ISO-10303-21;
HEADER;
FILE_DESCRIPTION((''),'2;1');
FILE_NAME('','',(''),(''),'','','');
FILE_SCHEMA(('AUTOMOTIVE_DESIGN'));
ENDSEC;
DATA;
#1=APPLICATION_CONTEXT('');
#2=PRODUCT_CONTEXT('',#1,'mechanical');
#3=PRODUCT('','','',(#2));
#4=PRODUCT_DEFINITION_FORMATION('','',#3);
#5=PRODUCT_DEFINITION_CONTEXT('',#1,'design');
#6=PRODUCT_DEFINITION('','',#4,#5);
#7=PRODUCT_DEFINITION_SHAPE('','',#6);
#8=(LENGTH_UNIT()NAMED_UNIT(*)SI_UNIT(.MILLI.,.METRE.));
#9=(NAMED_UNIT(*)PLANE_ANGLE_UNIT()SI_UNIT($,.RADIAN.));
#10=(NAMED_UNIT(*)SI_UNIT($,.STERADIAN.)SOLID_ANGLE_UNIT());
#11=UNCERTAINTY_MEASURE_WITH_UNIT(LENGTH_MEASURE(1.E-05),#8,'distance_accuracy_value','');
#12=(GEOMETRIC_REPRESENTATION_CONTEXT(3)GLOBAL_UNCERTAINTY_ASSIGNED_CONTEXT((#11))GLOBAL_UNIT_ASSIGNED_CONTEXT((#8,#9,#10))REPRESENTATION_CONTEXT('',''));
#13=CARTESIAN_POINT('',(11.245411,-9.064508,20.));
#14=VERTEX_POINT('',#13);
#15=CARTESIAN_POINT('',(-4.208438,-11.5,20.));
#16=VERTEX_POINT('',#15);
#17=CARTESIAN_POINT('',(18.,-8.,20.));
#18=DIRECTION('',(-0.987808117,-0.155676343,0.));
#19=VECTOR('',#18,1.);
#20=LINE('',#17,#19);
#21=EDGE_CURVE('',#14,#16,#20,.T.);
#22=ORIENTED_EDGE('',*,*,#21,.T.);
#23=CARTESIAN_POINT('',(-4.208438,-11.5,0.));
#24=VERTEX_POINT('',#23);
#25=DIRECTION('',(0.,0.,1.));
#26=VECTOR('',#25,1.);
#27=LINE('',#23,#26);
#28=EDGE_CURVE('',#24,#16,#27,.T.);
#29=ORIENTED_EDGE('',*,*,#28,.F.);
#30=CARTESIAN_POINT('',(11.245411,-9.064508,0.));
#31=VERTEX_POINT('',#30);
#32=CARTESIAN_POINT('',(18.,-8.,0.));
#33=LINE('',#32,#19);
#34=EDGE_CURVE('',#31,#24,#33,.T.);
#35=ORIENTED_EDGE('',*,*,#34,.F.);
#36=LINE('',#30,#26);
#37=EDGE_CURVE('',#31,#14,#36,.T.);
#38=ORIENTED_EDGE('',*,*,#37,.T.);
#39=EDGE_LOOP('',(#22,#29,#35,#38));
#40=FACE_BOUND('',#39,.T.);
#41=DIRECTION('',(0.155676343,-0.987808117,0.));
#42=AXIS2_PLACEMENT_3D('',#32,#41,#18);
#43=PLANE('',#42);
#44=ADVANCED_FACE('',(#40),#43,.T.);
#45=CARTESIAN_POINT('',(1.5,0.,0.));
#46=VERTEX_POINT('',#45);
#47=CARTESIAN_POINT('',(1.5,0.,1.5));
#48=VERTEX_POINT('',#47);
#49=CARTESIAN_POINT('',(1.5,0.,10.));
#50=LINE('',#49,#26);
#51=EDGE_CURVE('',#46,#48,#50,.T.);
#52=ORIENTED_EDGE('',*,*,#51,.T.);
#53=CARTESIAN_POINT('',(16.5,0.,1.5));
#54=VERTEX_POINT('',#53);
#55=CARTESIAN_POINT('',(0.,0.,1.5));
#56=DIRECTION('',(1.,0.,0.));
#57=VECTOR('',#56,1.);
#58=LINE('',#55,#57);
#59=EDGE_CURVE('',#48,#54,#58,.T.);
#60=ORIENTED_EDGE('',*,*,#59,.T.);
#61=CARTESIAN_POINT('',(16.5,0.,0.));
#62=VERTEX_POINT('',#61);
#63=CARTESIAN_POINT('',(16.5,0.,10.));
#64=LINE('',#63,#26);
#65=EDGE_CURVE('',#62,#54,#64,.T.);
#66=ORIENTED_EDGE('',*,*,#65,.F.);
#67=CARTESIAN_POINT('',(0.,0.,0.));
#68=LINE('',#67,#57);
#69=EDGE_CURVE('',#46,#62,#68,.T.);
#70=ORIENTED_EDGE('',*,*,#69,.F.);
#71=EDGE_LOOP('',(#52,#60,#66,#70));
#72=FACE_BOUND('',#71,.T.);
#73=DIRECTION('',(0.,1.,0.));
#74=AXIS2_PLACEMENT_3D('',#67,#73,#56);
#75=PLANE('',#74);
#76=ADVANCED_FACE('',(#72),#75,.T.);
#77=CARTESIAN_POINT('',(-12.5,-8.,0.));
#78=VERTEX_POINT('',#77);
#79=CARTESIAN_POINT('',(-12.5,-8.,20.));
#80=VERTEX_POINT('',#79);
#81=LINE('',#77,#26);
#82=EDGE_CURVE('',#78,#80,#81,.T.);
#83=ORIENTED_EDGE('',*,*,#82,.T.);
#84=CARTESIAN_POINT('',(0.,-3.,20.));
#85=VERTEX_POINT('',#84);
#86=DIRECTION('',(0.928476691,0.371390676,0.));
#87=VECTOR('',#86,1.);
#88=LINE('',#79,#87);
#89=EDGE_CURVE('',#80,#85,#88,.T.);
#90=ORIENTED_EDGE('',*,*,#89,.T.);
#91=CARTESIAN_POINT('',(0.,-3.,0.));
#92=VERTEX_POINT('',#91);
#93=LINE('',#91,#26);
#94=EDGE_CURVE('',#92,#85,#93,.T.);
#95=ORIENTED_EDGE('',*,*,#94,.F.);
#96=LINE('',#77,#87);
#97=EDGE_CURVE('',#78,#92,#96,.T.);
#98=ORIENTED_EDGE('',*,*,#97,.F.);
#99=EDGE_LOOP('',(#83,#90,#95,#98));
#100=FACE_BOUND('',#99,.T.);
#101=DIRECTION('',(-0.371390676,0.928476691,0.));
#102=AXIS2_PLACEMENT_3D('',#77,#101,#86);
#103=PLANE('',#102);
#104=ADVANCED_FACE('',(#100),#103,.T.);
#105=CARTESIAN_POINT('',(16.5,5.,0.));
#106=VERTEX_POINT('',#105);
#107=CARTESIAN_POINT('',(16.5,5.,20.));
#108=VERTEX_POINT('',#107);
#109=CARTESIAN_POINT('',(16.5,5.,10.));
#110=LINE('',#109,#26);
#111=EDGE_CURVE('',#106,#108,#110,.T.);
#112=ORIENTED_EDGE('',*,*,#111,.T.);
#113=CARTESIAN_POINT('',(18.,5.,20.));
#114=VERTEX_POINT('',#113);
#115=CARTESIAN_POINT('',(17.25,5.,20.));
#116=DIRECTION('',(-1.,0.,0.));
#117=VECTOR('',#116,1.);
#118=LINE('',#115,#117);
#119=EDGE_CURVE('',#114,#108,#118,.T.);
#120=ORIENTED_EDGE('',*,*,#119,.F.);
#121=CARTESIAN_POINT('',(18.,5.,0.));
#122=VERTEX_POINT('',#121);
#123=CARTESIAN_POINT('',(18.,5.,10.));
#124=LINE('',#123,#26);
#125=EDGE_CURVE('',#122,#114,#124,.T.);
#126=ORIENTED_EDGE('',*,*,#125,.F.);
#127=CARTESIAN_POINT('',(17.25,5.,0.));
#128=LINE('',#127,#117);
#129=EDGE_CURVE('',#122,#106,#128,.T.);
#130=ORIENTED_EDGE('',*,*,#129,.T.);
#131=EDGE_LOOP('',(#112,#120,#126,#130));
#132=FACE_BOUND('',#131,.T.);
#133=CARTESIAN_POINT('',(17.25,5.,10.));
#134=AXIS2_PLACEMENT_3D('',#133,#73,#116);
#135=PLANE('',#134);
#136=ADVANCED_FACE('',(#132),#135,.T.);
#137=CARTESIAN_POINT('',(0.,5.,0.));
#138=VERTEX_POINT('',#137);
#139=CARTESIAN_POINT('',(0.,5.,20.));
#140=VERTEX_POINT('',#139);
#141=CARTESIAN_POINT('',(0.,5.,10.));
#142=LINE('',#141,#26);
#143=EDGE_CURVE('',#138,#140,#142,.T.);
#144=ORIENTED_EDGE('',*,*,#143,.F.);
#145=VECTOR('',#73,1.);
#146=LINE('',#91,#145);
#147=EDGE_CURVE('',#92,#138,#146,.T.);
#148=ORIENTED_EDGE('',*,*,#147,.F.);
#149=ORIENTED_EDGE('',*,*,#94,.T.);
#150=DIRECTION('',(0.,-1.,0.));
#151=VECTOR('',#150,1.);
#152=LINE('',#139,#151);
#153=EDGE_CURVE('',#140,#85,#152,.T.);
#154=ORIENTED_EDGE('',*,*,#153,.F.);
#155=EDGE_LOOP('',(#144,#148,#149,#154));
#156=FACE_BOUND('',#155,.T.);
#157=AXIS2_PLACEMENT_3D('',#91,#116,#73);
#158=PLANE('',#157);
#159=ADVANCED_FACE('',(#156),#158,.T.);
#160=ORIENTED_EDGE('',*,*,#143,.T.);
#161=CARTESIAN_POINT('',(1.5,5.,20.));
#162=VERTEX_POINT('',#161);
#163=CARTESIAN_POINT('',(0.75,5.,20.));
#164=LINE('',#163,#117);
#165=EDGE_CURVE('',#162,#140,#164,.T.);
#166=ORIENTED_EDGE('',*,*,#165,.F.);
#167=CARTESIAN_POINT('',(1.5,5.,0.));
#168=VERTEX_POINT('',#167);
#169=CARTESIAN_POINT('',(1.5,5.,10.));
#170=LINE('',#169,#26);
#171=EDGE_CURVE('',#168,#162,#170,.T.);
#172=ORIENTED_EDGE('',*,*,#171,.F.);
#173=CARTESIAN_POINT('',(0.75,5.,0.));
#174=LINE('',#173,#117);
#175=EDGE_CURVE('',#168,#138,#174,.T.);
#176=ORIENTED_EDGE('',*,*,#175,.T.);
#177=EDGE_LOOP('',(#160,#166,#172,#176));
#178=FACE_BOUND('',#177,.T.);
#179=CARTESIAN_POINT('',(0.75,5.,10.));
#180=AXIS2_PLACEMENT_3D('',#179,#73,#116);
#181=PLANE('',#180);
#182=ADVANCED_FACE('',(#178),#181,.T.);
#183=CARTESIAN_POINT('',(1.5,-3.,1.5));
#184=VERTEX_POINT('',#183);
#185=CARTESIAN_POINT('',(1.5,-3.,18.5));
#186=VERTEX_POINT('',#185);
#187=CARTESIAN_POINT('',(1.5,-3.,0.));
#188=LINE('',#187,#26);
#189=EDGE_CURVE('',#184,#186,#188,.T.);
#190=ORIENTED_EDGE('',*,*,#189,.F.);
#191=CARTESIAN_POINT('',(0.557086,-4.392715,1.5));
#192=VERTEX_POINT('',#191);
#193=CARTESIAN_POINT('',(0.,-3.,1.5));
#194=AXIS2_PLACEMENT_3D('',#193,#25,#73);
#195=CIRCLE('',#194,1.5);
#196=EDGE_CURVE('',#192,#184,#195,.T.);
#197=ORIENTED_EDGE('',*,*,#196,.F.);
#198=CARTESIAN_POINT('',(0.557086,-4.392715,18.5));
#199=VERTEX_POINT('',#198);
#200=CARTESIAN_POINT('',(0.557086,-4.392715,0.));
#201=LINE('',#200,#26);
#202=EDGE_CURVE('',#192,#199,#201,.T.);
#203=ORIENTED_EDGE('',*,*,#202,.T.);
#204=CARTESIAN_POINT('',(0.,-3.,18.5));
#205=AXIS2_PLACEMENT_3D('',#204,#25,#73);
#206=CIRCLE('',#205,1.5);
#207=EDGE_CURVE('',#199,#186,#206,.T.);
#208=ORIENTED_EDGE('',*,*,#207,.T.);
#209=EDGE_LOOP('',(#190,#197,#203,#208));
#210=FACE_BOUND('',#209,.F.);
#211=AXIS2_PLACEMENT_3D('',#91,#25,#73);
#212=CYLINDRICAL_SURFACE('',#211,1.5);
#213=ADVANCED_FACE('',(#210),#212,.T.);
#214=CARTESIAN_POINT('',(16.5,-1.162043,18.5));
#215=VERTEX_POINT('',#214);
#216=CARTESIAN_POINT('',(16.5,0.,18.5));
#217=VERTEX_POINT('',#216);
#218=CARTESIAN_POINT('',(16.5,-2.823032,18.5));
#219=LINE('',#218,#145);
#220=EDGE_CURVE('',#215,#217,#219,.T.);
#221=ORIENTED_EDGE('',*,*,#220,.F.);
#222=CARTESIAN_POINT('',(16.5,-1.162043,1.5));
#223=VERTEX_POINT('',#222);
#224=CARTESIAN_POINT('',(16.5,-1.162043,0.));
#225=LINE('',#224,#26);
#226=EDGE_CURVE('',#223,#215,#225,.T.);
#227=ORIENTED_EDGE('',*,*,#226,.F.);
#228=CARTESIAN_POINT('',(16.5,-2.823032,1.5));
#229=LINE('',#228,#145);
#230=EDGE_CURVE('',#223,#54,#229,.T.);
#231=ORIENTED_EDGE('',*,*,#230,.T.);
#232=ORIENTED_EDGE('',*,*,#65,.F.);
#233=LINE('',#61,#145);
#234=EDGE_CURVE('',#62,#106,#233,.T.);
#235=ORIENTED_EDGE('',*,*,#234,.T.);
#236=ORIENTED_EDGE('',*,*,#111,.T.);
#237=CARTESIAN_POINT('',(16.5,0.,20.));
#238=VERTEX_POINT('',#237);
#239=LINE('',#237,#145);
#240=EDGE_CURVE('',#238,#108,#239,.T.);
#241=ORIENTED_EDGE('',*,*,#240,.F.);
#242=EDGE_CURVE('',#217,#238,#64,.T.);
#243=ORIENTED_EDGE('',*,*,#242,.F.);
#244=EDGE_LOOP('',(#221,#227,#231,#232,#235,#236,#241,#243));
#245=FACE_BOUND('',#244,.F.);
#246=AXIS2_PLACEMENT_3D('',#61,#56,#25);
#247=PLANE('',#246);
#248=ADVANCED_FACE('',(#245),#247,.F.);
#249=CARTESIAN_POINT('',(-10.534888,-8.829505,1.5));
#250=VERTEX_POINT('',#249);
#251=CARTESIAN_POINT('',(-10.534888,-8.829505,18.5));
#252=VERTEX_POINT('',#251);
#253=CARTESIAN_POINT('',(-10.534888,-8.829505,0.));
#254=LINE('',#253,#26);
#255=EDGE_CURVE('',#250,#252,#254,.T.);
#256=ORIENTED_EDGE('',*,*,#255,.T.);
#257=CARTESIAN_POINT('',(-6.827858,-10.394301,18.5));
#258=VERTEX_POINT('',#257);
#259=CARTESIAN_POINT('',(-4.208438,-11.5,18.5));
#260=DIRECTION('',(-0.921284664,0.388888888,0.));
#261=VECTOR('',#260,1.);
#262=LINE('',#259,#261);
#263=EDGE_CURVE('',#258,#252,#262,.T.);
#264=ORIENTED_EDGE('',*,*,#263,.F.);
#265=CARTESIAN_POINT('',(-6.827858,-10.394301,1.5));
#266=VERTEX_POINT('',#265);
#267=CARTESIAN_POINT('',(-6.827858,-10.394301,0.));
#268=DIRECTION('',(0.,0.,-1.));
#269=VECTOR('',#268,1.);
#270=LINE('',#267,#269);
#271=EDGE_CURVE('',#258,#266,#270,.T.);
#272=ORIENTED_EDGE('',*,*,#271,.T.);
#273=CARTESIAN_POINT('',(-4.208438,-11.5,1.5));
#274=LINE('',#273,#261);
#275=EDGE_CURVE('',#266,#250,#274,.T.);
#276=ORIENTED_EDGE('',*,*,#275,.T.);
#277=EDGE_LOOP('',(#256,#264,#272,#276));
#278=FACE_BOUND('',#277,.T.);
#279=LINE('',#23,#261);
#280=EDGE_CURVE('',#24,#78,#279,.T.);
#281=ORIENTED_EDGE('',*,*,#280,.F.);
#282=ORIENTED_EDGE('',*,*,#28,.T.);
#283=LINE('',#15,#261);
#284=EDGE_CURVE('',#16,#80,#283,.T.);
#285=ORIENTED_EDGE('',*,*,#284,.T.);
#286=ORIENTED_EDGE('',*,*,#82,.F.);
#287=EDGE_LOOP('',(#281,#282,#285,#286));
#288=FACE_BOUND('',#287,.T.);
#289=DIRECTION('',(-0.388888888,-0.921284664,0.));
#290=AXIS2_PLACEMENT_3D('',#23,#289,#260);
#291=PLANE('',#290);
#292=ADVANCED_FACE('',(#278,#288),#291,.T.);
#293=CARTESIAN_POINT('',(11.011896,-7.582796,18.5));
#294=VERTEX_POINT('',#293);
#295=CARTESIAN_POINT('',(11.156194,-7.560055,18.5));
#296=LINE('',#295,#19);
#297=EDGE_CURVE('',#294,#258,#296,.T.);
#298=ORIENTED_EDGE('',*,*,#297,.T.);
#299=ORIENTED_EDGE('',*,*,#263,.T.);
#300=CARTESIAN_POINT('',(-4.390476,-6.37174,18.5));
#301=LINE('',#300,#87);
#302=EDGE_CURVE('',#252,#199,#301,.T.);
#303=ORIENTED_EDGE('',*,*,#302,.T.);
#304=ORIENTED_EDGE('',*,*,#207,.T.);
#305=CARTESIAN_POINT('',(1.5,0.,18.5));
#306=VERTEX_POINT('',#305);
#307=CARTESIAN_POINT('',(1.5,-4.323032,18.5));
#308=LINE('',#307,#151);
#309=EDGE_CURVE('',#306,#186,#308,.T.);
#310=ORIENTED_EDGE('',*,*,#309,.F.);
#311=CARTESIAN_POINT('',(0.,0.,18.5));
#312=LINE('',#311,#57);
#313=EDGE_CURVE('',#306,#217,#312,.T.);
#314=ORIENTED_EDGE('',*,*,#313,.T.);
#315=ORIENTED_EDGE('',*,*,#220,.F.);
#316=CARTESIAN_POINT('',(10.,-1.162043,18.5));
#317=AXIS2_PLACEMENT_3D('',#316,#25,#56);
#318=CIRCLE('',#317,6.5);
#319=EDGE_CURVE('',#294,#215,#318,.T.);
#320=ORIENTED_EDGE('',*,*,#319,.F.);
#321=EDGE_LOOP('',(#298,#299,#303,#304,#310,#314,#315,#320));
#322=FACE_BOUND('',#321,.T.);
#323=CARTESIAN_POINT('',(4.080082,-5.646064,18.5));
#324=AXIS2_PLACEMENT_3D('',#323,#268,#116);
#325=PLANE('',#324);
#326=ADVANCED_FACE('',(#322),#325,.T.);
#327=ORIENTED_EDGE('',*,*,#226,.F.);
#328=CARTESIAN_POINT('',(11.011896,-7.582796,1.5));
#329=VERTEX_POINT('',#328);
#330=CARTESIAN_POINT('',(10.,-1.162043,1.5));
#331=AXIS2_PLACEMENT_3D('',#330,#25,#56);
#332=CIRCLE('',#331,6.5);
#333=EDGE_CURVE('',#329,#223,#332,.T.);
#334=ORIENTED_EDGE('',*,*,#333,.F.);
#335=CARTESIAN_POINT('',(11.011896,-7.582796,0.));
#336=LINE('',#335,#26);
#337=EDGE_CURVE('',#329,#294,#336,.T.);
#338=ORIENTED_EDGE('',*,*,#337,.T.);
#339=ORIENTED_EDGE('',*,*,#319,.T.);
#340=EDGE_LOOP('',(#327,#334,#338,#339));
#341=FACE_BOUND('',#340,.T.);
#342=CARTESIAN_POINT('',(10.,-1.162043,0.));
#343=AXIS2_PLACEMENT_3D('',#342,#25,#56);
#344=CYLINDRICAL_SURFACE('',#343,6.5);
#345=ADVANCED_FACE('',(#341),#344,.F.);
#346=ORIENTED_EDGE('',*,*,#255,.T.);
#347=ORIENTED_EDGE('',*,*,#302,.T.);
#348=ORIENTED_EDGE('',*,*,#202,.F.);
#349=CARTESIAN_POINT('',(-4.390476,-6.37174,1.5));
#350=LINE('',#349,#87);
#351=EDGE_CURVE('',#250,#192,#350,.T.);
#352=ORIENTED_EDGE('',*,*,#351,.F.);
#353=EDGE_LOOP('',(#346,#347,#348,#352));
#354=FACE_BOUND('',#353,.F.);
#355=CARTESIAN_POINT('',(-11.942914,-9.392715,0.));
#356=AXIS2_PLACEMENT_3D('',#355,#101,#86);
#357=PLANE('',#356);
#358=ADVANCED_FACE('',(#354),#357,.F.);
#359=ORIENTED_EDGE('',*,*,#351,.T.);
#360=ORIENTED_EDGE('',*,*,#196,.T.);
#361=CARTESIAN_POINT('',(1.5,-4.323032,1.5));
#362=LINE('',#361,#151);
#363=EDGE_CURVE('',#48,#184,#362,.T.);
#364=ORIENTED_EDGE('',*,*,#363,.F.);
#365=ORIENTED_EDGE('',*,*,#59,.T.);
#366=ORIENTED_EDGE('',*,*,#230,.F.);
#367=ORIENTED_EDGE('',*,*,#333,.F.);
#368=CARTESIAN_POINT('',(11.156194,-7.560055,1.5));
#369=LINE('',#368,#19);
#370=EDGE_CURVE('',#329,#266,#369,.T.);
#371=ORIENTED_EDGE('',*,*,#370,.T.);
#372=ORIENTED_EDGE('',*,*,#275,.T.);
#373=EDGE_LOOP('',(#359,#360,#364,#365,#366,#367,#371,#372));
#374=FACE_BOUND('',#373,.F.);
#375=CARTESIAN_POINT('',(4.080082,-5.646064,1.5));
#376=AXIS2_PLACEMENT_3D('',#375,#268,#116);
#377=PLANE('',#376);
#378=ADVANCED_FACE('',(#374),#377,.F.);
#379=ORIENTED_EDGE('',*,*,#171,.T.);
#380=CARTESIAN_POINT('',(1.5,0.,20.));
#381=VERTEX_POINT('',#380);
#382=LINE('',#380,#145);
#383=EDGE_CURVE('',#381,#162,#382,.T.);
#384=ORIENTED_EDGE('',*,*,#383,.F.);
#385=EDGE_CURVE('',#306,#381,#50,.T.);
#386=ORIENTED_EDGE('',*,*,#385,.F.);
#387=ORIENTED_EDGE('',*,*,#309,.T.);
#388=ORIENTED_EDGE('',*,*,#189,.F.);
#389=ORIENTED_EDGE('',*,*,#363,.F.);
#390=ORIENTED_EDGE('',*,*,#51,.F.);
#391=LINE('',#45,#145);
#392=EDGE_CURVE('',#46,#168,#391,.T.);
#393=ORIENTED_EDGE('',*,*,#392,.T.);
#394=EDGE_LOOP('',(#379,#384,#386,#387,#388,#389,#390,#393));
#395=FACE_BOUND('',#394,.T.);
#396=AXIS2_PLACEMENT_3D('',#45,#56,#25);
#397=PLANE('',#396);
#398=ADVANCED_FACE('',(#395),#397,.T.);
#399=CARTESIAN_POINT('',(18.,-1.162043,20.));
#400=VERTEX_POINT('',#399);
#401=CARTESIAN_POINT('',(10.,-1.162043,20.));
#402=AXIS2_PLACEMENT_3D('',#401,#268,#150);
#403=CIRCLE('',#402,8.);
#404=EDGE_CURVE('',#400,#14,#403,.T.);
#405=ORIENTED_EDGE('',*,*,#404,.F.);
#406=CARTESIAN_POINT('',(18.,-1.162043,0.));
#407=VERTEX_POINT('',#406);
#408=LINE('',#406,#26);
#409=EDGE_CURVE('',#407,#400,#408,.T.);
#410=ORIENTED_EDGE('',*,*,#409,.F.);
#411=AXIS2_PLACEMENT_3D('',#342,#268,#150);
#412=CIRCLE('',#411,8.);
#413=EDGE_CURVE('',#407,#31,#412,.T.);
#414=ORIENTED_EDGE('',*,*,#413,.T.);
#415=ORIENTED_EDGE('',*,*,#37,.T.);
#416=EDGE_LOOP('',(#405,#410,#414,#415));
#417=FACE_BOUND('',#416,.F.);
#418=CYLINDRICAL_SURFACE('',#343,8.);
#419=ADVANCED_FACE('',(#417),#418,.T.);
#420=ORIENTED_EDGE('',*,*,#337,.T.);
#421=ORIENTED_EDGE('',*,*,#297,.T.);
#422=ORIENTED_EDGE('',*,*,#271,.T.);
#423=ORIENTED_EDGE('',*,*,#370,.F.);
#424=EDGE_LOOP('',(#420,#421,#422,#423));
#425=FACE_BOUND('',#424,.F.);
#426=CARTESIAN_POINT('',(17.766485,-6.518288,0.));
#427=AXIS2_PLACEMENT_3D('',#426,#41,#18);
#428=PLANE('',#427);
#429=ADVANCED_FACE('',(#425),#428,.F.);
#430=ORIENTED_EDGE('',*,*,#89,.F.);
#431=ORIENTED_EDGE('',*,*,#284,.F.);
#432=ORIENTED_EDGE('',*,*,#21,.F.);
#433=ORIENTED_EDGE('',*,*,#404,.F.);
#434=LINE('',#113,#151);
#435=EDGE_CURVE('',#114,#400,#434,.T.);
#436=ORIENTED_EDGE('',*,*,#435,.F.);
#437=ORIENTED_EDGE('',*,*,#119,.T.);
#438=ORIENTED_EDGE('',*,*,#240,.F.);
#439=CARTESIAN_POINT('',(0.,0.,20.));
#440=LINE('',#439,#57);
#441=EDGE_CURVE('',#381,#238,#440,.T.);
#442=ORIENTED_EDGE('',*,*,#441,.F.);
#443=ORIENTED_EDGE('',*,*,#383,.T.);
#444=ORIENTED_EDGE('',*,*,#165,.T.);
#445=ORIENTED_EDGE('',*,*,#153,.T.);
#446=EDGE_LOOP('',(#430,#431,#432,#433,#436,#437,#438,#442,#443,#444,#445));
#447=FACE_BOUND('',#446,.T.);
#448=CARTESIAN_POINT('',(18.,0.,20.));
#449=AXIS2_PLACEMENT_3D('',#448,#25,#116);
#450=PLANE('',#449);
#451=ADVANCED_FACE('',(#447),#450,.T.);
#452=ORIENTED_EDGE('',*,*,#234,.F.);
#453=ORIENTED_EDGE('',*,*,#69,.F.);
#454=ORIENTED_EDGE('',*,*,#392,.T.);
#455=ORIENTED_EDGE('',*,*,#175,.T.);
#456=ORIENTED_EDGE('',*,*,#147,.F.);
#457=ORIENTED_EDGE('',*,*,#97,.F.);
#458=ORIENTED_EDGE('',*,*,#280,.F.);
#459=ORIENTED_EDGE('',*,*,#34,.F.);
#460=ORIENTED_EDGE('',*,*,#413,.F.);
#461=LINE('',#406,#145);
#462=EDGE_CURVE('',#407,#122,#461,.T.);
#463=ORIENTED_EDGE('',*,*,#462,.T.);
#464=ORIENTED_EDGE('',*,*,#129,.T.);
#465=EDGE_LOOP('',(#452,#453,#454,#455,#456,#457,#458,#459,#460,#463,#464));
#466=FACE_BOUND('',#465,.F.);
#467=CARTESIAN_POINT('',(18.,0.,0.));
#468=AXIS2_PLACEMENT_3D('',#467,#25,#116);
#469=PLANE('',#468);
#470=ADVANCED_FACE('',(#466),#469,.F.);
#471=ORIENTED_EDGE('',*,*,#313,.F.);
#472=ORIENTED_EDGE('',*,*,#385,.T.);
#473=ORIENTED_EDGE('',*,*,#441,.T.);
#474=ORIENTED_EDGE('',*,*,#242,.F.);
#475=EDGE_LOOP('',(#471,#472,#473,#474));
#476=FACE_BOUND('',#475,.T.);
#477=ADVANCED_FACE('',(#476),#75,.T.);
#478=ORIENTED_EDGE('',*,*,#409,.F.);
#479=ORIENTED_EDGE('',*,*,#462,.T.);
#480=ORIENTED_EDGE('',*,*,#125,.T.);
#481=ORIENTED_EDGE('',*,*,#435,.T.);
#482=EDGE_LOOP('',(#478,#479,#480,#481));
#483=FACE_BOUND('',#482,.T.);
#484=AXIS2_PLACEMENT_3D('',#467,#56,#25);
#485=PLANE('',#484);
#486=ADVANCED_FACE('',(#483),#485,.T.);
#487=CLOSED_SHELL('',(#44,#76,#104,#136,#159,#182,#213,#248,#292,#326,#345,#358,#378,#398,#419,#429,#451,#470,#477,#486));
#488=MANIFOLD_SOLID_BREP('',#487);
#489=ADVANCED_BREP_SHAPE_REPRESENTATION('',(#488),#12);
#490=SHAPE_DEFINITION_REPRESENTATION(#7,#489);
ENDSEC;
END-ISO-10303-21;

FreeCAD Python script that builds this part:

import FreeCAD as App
import Part
import Sketcher

V = App.Vector
Q = App.Units.Quantity


def edges_at(feature, points):
    """Names of the edges that pass closest to the given points."""
    edges = feature.Shape.Edges
    near = lambda p: min(range(len(edges)), key=lambda i: edges[i].distToShape(Part.Vertex(*p))[0])
    return sorted({f"Edge{near(p) + 1}" for p in points})


def faces_at(feature, points):
    """Names of the faces that lie closest to the given points."""
    faces = feature.Shape.Faces
    near = lambda p: min(range(len(faces)), key=lambda i: faces[i].distToShape(Part.Vertex(*p))[0])
    return sorted({f"Face{near(p) + 1}" for p in points})


def add_polygon(sketch, points):
    """Adds a closed chain of lines whose ends are joined by coincident constraints."""
    first, n = sketch.GeometryCount, len(points)
    for a, b in zip(points, points[1:] + points[:1]):
        sketch.addGeometry(Part.LineSegment(App.Vector(*a, 0), App.Vector(*b, 0)), False)
    for i in range(n):
        sketch.addConstraint(Sketcher.Constraint("Coincident", first + i, 2, first + (i + 1) % n, 1))

doc = App.newDocument("Part")
body = doc.addObject("PartDesign::Body", "Body")

# Sketch on XY plane
sketch1 = body.newObject("Sketcher::SketchObject", "Sketch")
sketch1.AttachmentSupport = (doc.getObject("XY_Plane"), [""])
sketch1.MapMode = "FlatFace"
add_polygon(sketch1, [(18, 0), (0, 0), (0, -3), (-12.5, -8), (-4.208438, -11.5), (18, -8)])  # lines 0-5
sketch1.addConstraint([
    Sketcher.Constraint("Horizontal", 0),
    Sketcher.Constraint("Vertical", 1),
    Sketcher.Constraint("Vertical", 5),
    Sketcher.Constraint("Coincident", 0, 2, -1, 1),
    Sketcher.Constraint("Horizontal", 2, 2, 4, 2),
    Sketcher.Constraint("DistanceX", 0, 2, 0, 1, Q("18 mm")),
    Sketcher.Constraint("DistanceY", 1, 2, 1, 1, Q("3 mm")),
    Sketcher.Constraint("DistanceY", 5, 1, 5, 2, Q("8 mm")),
    Sketcher.Constraint("Distance", 3, Q("9 mm")),
    Sketcher.Constraint("DistanceX", 2, 2, -1, 1, Q("12.5 mm")),
    Sketcher.Constraint("DistanceY", 3, 2, -1, 1, Q("11.5 mm")),
])
pad1 = body.newObject("PartDesign::Pad", "Pad")
pad1.Profile = sketch1
pad1.Length = 20
doc.recompute()

fillet = body.newObject("PartDesign::Fillet", "Fillet")
fillet.Base = (pad1, edges_at(pad1, [(18, -8, 10)]))
fillet.Radius = 8
doc.recompute()

thickness = body.newObject("PartDesign::Thickness", "Thickness")
thickness.Base = (fillet, faces_at(fillet, [(9, 0, 10), (-8.354, -9.75, 10)]))
thickness.Value = 1.5
thickness.Reversed = True
thickness.Join = "Arc"

# Sketch on XZ plane
sketch2 = body.newObject("Sketcher::SketchObject", "Sketch001")
sketch2.AttachmentSupport = (doc.getObject("XZ_Plane"), [""])
sketch2.MapMode = "FlatFace"
add_polygon(sketch2, [(18, 20), (18, 0), (16.5, 0), (16.5, 20)])  # lines 0-3
add_polygon(sketch2, [(1.5, 20), (1.5, 0), (0, 0), (0, 20)])  # lines 4-7
sketch2.addConstraint([
    Sketcher.Constraint("Vertical", 0),
    Sketcher.Constraint("Horizontal", 1),
    Sketcher.Constraint("Vertical", 2),
    Sketcher.Constraint("Horizontal", 3),
    Sketcher.Constraint("Vertical", 4),
    Sketcher.Constraint("Horizontal", 5),
    Sketcher.Constraint("Vertical", 6),
    Sketcher.Constraint("Horizontal", 7),
    Sketcher.Constraint("Coincident", 5, 2, -1, 1),
    Sketcher.Constraint("PointOnObject", 0, 2, -1),
    Sketcher.Constraint("Horizontal", 3, 2, 6, 2),
    Sketcher.Constraint("Equal", 3, 5),
    Sketcher.Constraint("DistanceY", 0, 2, 0, 1, Q("20 mm")),
    Sketcher.Constraint("DistanceX", 1, 2, 1, 1, Q("1.5 mm")),
    Sketcher.Constraint("DistanceX", -1, 1, 0, 2, Q("18 mm")),
])
pad2 = body.newObject("PartDesign::Pad", "Pad001")
pad2.Profile = sketch2
pad2.Length = 5
pad2.Reversed = True

doc.recompute()
